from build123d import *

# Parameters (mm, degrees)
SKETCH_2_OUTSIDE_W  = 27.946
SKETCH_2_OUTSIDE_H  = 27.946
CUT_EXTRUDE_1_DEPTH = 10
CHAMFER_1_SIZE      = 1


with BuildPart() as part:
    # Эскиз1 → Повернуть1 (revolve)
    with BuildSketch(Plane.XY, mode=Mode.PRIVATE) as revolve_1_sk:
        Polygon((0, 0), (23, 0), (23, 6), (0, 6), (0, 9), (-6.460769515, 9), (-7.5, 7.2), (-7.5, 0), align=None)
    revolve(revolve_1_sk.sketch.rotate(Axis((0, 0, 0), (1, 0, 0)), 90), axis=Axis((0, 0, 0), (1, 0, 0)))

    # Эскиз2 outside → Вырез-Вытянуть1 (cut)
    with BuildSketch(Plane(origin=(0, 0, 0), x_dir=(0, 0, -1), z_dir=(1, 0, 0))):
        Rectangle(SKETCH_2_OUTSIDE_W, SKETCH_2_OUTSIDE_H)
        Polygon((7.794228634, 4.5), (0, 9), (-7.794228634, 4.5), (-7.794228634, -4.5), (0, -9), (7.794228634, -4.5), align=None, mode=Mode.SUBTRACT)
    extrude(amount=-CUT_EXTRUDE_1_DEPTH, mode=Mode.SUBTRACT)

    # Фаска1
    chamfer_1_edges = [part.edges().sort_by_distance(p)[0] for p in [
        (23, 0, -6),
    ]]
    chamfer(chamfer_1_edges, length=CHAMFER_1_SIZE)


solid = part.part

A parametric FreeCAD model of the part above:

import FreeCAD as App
import Part
import Sketcher

V = App.Vector
Q = App.Units.Quantity


def edges_at(feature, points):
    """Names of the edges that pass closest to the given points."""
    edges = feature.Shape.Edges
    near = lambda p: min(range(len(edges)), key=lambda i: edges[i].distToShape(Part.Vertex(*p))[0])
    return sorted({f"Edge{near(p) + 1}" for p in points})

doc = App.newDocument("Part")
body = doc.addObject("PartDesign::Body", "Body")

# Sketch on XY plane
sketch1 = body.newObject("Sketcher::SketchObject", "Sketch")
sketch1.AttachmentSupport = (doc.getObject("XY_Plane"), [""])
sketch1.MapMode = "FlatFace"
sketch1.addGeometry([
    Part.LineSegment(V(23, 0, 0), V(23, 6, 0)),  # 0
    Part.LineSegment(V(23, 6, 0), V(0, 6, 0)),  # 1
    Part.LineSegment(V(0, 6, 0), V(0, 9, 0)),  # 2
    Part.LineSegment(V(0, 9, 0), V(-6.46077, 9, 0)),  # 3
    Part.LineSegment(V(-6.46077, 9, 0), V(-7.5, 7.2, 0)),  # 4
    Part.LineSegment(V(-7.5, 7.2, 0), V(-7.5, 0, 0)),  # 5
    Part.LineSegment(V(-7.5, 0, 0), V(23, 0, 0)),  # 6
], False)
sketch1.addConstraint([
    Sketcher.Constraint("Coincident", 0, 2, 1, 1),
    Sketcher.Constraint("Coincident", 1, 2, 2, 1),
    Sketcher.Constraint("Coincident", 2, 2, 3, 1),
    Sketcher.Constraint("Coincident", 3, 2, 4, 1),
    Sketcher.Constraint("Coincident", 4, 2, 5, 1),
    Sketcher.Constraint("Coincident", 5, 2, 6, 1),
    Sketcher.Constraint("Coincident", 6, 2, 0, 1),
    Sketcher.Constraint("Vertical", 0),
    Sketcher.Constraint("Horizontal", 1),
    Sketcher.Constraint("Vertical", 2),
    Sketcher.Constraint("Horizontal", 3),
    Sketcher.Constraint("Vertical", 5),
    Sketcher.Constraint("Horizontal", 6),
    Sketcher.Constraint("PointOnObject", 1, 2, -2),
    Sketcher.Constraint("PointOnObject", 5, 2, -1),
    Sketcher.Constraint("DistanceX", 1, 2, 1, 1, 23.0),
    Sketcher.Constraint("DistanceY", 0, 1, 0, 2, 6.0),
    Sketcher.Constraint("DistanceY", 2, 1, 2, 2, 3.0),
    Sketcher.Constraint("Angle", 4, Q("-120 deg")),
    Sketcher.Constraint("DistanceX", 6, 1, 6, 2, 30.5),
    Sketcher.Constraint("DistanceY", 5, 2, 5, 1, 7.2),
])
revolution = body.newObject("PartDesign::Revolution", "Revolution")
revolution.Profile = sketch1
revolution.ReferenceAxis = (sketch1, ["H_Axis"])
revolution.Angle = 360

# Sketch on YZ plane
sketch2 = body.newObject("Sketcher::SketchObject", "Sketch001")
sketch2.AttachmentSupport = (doc.getObject("YZ_Plane"), [""])
sketch2.MapMode = "FlatFace"
sketch2.addGeometry([
    Part.LineSegment(V(13.973, 13.973, 0), V(-13.973, 13.973, 0)),  # 0
    Part.LineSegment(V(-13.973, 13.973, 0), V(-13.973, -13.973, 0)),  # 1
    Part.LineSegment(V(-13.973, -13.973, 0), V(13.973, -13.973, 0)),  # 2
    Part.LineSegment(V(13.973, -13.973, 0), V(13.973, 13.973, 0)),  # 3
    Part.LineSegment(V(9, 0, 0), V(4.5, -7.794229, 0)),  # 4
    Part.LineSegment(V(4.5, -7.794229, 0), V(-4.5, -7.794229, 0)),  # 5
    Part.LineSegment(V(-4.5, -7.794229, 0), V(-9, 0, 0)),  # 6
    Part.LineSegment(V(-9, 0, 0), V(-4.5, 7.794229, 0)),  # 7
    Part.LineSegment(V(-4.5, 7.794229, 0), V(4.5, 7.794229, 0)),  # 8
    Part.LineSegment(V(4.5, 7.794229, 0), V(9, 0, 0)),  # 9
], False)
sketch2.addConstraint([
    Sketcher.Constraint("Coincident", 0, 2, 1, 1),
    Sketcher.Constraint("Coincident", 1, 2, 2, 1),
    Sketcher.Constraint("Coincident", 2, 2, 3, 1),
    Sketcher.Constraint("Coincident", 3, 2, 0, 1),
    Sketcher.Constraint("Coincident", 4, 2, 5, 1),
    Sketcher.Constraint("Coincident", 5, 2, 6, 1),
    Sketcher.Constraint("Coincident", 6, 2, 7, 1),
    Sketcher.Constraint("Coincident", 7, 2, 8, 1),
    Sketcher.Constraint("Coincident", 8, 2, 9, 1),
    Sketcher.Constraint("Coincident", 9, 2, 4, 1),
    Sketcher.Constraint("Horizontal", 0),
    Sketcher.Constraint("Vertical", 1),
    Sketcher.Constraint("Horizontal", 2),
    Sketcher.Constraint("Vertical", 3),
    Sketcher.Constraint("Horizontal", 5),
    Sketcher.Constraint("Horizontal", 8),
    Sketcher.Constraint("Symmetric", 0, 2, 2, 2, -1, 1),
    Sketcher.Constraint("Symmetric", 4, 2, 7, 2, -1, 1),
    Sketcher.Constraint("Symmetric", 6, 2, 9, 2, -1, 1),
    Sketcher.Constraint("PointOnObject", 6, 2, -1),
    Sketcher.Constraint("Parallel", 6, 9),
    Sketcher.Constraint("Vertical", 5, 2, 7, 2),
    Sketcher.Constraint("Equal", 2, 1),
    Sketcher.Constraint("DistanceX", 5, 2, 5, 1, 9.0),
    Sketcher.Constraint("Angle", 4, Q("-120 deg")),
    Sketcher.Constraint("Distance", 4, 9.0),
    Sketcher.Constraint("DistanceX", 0, 2, 0, 1, 27.946),
])
pocket1 = body.newObject("PartDesign::Pocket", "Pocket")
pocket1.Profile = sketch2
pocket1.Length = 10
doc.recompute()

chamfer = body.newObject("PartDesign::Chamfer", "Chamfer")
chamfer.Base = (pocket1, edges_at(pocket1, [(23, 0, -6)]))
chamfer.Size = 1

doc.recompute()
